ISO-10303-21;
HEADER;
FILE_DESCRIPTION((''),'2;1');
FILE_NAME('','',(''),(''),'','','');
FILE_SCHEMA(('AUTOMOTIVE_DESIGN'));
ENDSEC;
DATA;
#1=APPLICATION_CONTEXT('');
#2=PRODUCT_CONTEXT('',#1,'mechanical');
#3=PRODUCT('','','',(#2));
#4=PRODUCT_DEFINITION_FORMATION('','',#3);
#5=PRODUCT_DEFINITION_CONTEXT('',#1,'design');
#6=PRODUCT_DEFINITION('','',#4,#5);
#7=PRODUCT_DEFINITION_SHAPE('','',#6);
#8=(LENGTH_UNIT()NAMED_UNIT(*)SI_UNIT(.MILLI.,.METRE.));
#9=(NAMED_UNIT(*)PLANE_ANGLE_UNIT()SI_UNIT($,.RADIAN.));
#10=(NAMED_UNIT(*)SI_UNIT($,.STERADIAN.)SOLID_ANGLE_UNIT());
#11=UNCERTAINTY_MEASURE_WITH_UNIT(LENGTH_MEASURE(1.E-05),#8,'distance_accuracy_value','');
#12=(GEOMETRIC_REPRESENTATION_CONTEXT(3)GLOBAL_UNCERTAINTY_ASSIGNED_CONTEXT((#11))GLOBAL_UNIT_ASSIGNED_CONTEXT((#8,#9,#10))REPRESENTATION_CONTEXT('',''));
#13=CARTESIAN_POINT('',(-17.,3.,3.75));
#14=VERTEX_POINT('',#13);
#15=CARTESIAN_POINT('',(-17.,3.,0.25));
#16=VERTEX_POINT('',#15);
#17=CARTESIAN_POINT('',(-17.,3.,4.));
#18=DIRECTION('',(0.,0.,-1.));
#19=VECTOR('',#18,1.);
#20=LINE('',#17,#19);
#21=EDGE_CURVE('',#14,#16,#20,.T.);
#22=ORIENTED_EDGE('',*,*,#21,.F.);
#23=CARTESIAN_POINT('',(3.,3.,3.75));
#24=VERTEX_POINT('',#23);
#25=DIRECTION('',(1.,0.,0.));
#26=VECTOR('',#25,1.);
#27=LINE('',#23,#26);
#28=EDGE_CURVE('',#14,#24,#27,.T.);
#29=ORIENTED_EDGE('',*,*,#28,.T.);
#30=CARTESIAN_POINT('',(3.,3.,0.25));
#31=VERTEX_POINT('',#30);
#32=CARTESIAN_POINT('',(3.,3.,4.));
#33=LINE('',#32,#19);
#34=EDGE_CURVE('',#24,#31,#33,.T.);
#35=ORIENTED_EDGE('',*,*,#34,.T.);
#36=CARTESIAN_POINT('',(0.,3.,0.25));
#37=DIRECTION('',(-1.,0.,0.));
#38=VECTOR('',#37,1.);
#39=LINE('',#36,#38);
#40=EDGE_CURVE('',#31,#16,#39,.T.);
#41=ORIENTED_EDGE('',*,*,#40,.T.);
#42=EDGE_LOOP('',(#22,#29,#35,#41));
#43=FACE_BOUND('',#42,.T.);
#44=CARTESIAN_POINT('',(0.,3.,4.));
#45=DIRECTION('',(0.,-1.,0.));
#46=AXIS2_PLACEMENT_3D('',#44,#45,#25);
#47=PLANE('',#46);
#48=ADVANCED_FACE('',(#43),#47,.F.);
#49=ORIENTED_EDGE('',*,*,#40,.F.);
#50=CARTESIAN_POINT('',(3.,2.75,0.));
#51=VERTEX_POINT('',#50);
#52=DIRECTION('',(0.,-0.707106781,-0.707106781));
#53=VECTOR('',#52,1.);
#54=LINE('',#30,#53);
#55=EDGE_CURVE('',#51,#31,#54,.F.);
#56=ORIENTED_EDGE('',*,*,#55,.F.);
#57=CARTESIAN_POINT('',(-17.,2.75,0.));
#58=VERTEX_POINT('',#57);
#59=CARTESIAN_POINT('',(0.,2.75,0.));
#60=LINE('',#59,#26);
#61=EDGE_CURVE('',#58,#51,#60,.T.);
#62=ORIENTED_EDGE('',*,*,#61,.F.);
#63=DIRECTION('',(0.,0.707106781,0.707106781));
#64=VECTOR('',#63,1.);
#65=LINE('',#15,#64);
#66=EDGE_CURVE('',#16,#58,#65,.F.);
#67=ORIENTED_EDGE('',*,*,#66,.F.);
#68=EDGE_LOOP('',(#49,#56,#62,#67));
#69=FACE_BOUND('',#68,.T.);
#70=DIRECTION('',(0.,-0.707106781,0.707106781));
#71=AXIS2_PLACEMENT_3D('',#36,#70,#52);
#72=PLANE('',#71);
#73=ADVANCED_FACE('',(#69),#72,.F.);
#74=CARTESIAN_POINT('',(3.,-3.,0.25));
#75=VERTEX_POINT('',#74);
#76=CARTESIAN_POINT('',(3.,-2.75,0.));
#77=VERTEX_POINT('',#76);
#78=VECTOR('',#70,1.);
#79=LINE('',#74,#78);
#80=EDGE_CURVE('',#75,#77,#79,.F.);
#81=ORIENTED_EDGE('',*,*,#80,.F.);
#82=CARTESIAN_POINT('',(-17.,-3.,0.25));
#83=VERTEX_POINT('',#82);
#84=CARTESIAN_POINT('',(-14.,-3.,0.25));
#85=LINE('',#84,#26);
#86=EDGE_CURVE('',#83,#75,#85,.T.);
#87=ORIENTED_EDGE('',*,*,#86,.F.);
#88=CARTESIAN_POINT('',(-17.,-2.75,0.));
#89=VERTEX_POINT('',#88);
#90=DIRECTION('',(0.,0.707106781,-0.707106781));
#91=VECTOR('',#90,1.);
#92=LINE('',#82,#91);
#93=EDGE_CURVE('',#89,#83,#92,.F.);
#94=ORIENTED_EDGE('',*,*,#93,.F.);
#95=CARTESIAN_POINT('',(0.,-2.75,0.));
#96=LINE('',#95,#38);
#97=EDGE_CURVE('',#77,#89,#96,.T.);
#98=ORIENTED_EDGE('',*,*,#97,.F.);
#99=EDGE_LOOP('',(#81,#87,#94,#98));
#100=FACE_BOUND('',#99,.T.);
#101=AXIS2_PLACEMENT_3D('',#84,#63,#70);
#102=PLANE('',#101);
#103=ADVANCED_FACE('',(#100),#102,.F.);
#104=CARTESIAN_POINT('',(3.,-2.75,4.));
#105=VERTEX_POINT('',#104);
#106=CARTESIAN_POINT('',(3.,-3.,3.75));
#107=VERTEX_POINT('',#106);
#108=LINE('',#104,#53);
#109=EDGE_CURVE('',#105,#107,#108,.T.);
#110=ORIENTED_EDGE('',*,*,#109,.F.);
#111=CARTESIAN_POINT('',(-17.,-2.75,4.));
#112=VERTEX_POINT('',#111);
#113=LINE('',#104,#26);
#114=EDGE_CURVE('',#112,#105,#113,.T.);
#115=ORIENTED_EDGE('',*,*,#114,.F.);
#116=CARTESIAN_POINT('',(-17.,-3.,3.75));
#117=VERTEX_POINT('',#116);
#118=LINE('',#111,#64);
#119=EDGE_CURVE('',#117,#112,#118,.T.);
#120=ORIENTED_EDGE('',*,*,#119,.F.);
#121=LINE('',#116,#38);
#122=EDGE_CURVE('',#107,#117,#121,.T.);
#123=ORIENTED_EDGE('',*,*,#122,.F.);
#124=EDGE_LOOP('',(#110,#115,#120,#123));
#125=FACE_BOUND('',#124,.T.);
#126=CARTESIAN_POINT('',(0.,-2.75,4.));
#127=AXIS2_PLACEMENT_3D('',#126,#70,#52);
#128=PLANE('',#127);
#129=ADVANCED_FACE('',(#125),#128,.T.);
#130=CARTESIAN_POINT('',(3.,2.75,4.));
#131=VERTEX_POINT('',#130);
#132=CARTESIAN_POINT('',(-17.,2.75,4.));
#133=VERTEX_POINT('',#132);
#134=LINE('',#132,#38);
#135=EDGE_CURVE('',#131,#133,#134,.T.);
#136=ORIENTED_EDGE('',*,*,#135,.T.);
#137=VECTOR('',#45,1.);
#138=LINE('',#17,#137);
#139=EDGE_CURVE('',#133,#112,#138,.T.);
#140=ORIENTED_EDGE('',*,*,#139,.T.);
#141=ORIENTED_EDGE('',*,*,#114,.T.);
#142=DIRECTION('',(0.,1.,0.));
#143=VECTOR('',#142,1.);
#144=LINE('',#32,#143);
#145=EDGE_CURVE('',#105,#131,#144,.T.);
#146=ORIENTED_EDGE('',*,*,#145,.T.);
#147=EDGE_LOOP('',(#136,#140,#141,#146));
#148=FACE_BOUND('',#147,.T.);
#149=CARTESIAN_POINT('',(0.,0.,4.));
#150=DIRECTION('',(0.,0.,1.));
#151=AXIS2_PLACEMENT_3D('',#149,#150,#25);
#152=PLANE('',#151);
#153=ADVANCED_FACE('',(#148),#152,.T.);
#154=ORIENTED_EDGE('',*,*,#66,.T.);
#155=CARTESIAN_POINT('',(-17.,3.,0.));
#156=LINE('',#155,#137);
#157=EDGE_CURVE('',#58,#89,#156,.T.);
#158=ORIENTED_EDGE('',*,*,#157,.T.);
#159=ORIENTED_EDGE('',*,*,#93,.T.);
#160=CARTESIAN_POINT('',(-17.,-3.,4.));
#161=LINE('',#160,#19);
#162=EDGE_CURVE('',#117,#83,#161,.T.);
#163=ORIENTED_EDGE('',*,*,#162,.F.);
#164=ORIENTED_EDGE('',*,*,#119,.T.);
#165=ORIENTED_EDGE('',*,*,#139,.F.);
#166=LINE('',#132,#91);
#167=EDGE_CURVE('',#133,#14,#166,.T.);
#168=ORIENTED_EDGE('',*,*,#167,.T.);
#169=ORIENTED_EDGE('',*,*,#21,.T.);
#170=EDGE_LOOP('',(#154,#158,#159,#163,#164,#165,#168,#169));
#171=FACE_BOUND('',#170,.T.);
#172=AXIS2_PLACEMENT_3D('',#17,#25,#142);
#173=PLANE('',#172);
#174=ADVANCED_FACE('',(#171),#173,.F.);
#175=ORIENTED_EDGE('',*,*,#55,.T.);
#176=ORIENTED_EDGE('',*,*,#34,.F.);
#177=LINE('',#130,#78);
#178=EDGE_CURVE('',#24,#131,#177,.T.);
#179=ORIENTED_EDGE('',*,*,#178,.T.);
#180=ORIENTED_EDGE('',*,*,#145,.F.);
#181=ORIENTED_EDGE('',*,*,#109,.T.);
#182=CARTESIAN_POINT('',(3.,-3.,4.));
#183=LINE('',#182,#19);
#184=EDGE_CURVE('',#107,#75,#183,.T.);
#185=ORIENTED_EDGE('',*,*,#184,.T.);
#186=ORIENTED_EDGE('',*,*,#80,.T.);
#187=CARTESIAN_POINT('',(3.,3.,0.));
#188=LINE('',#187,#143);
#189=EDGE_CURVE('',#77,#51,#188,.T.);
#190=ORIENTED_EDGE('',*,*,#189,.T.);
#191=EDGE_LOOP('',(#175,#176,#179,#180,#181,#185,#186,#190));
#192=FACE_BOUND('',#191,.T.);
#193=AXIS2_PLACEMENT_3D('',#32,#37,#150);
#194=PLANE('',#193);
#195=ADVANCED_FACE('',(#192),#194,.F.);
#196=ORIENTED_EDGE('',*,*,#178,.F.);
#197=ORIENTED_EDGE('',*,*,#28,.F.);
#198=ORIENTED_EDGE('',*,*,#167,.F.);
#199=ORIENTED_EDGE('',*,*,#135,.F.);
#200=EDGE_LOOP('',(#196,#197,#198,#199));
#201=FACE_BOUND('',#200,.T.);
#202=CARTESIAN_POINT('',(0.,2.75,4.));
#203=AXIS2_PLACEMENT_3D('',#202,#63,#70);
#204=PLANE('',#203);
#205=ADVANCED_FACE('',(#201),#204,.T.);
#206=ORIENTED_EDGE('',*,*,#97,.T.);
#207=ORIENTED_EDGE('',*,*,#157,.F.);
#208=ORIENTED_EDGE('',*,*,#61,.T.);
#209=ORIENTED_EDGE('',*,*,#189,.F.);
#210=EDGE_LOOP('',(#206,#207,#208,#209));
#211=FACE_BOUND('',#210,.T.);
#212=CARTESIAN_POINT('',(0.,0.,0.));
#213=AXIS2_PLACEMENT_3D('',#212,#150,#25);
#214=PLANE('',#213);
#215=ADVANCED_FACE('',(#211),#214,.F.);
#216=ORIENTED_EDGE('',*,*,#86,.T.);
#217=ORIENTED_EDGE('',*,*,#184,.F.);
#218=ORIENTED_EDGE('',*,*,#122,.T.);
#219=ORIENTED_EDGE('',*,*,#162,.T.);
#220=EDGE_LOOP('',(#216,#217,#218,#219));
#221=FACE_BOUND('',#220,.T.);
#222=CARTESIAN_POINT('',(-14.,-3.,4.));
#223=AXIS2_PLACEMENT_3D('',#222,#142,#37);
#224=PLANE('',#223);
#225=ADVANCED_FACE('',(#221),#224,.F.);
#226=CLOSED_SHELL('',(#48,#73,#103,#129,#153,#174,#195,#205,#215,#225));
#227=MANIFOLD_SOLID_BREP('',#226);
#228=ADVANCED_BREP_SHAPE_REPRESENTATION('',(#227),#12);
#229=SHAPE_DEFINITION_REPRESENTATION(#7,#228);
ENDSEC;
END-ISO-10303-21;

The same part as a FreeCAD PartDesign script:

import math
import FreeCAD as App
import Part
import Sketcher
Q = App.Units.Quantity


def edges_at(feature, points):
    """Names of the edges that pass closest to the given points."""
    edges = feature.Shape.Edges
    near = lambda p: min(range(len(edges)), key=lambda i: edges[i].distToShape(Part.Vertex(*p))[0])
    return sorted({f"Edge{near(p) + 1}" for p in points})

doc = App.newDocument("Part")
body = doc.addObject("PartDesign::Body", "Body")

# Sketch on XY plane
sketch1 = body.newObject("Sketcher::SketchObject", "Sketch")
sketch1.AttachmentSupport = (doc.getObject("XY_Plane"), [""])
sketch1.MapMode = "FlatFace"
sketch1.addGeometry([
    Part.LineSegment(App.Vector(0, 3, 0), App.Vector(-14, 3, 0)),
    Part.ArcOfCircle(Part.Circle(App.Vector(-14, 0, 0), App.Vector(0, 0, 1), 3), math.radians(90), math.radians(270)),
    Part.LineSegment(App.Vector(-14, -3, 0), App.Vector(0, -3, 0)),
    Part.ArcOfCircle(Part.Circle(App.Vector(0, 0, 0), App.Vector(0, 0, 1), 3), math.radians(-90), math.radians(90)),
], False)
sketch1.addConstraint([
    Sketcher.Constraint("Tangent", 0, 2, 1, 1),
    Sketcher.Constraint("Tangent", 1, 2, 2, 1),
    Sketcher.Constraint("Tangent", 2, 2, 3, 1),
    Sketcher.Constraint("Tangent", 3, 2, 0, 1),
    Sketcher.Constraint("Horizontal", 0),
    Sketcher.Constraint("Horizontal", 2),
    Sketcher.Constraint("Coincident", 3, 3, -1, 1),
    Sketcher.Constraint("Radius", 1, Q("3 mm")),
    Sketcher.Constraint("DistanceX", 0, 2, 0, 1, Q("14 mm")),
])
pad1 = body.newObject("PartDesign::Pad", "Pad")
pad1.Profile = sketch1
pad1.Length = 4

# Sketch on XY plane
sketch2 = body.newObject("Sketcher::SketchObject", "Sketch001")
sketch2.AttachmentSupport = (doc.getObject("XY_Plane"), [""])
sketch2.MapMode = "FlatFace"
sketch2.addGeometry([
    Part.LineSegment(App.Vector(-17, 3, 0), App.Vector(-17, -3, 0)),
    Part.LineSegment(App.Vector(-17, -3, 0), App.Vector(3, -3, 0)),
    Part.LineSegment(App.Vector(3, -3, 0), App.Vector(3, 3, 0)),
    Part.LineSegment(App.Vector(3, 3, 0), App.Vector(-17, 3, 0)),
], False)
sketch2.addConstraint([
    Sketcher.Constraint("Coincident", 0, 2, 1, 1),
    Sketcher.Constraint("Coincident", 1, 2, 2, 1),
    Sketcher.Constraint("Coincident", 2, 2, 3, 1),
    Sketcher.Constraint("Coincident", 3, 2, 0, 1),
    Sketcher.Constraint("Vertical", 0),
    Sketcher.Constraint("Horizontal", 1),
    Sketcher.Constraint("Vertical", 2),
    Sketcher.Constraint("Horizontal", 3),
    Sketcher.Constraint("DistanceX", 1, 1, 1, 2, Q("20 mm")),
    Sketcher.Constraint("DistanceY", 0, 2, 0, 1, Q("6 mm")),
    Sketcher.Constraint("DistanceX", 0, 2, -1, 1, Q("17 mm")),
    Sketcher.Constraint("DistanceY", 0, 2, -1, 1, Q("3 mm")),
])
pad2 = body.newObject("PartDesign::Pad", "Pad001")
pad2.Profile = sketch2
pad2.Length = 4
doc.recompute()

chamfer = body.newObject("PartDesign::Chamfer", "Chamfer")
chamfer.Base = (pad2, edges_at(pad2, [
    (-7, -3, 4),
    (-7, -3, 0),
    (-7, 3, 0),
    (-7, 3, 4),
]))
chamfer.Size = 0.25

doc.recompute()
